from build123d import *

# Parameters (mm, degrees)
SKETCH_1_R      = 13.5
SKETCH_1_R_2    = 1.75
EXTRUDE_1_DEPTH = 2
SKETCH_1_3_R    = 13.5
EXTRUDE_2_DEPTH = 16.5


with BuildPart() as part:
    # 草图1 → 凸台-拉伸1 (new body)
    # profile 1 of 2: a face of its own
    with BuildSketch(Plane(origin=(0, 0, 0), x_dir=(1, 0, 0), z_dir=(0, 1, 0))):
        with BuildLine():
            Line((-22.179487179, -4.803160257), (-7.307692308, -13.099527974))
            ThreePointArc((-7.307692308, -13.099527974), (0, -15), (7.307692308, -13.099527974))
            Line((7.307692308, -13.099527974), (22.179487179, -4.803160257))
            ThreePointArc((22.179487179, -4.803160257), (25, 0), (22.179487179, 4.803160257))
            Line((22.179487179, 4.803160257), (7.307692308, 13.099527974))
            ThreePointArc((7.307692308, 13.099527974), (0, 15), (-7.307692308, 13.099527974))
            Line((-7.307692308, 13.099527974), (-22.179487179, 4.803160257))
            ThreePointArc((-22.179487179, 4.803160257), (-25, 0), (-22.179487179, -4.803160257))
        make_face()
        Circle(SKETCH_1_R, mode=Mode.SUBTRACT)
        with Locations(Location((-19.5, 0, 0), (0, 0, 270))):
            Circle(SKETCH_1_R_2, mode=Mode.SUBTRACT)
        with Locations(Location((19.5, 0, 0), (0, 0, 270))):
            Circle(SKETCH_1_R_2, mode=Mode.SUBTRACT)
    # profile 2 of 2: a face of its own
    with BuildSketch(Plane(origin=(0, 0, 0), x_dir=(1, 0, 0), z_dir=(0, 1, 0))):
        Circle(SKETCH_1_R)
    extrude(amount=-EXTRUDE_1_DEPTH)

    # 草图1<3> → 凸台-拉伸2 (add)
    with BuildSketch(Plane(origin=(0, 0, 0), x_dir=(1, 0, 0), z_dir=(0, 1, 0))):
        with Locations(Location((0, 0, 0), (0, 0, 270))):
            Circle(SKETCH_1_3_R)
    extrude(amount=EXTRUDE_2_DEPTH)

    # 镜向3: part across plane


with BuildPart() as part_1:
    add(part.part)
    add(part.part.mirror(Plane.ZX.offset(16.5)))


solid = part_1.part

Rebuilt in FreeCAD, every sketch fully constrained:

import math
import FreeCAD as App
import Part
import Sketcher

V = App.Vector

doc = App.newDocument("Part")
params = doc.addObject("Spreadsheet::Sheet", "Params")
for row, (alias, value) in enumerate([
    ("sketch1_radius", "15 mm"),
    ("sketch1_diameter", "3.5 mm"),
    ("sketch1_radius2", "5.5 mm"),
    ("pad1_length", "2 mm"),
    ("sketch2_diameter", "27 mm"),
    ("pad2_length", "16.5 mm"),
], start=1):
    params.set(f"A{row}", alias)
    params.set(f"B{row}", "=" + value)
    params.setAlias(f"B{row}", alias)

body = doc.addObject("PartDesign::Body", "Body")

sketch1 = doc.addObject("Sketcher::SketchObject", "Sketch")
body.addObject(sketch1)
sketch1.AttachmentSupport = (doc.XZ_Plane, [""])
sketch1.MapMode = "FlatFace"
sketch1.addGeometry(Part.LineSegment(V(-22.2, 4.8, 0), V(-7.3, 13.1, 0)), False)
sketch1.addGeometry(Part.ArcOfCircle(Part.Circle(V(0, 0, 0), V(0, 0, 1), 15), math.radians(61), math.radians(119)), False)
sketch1.addGeometry(Part.LineSegment(V(7.3, 13.1, 0), V(22.2, 4.8, 0)), False)
sketch1.addGeometry(Part.ArcOfCircle(Part.Circle(V(19.5, 0, 0), V(0, 0, 1), 5.5), math.radians(-61), math.radians(61)), False)
sketch1.addGeometry(Part.LineSegment(V(22.2, -4.8, 0), V(7.3, -13.1, 0)), False)
sketch1.addGeometry(Part.ArcOfCircle(Part.Circle(V(0, 0, 0), V(0, 0, 1), 15), math.radians(-119), math.radians(-61)), False)
sketch1.addGeometry(Part.LineSegment(V(-7.3, -13.1, 0), V(-22.2, -4.8, 0)), False)
sketch1.addGeometry(Part.ArcOfCircle(Part.Circle(V(-19.5, 0, 0), V(0, 0, 1), 5.5), math.radians(119), math.radians(241)), False)
sketch1.addGeometry(Part.Circle(V(-19.5, 0, 0), V(0, 0, 1), 1.8), False)
sketch1.addGeometry(Part.Circle(V(19.5, 0, 0), V(0, 0, 1), 1.8), False)
sketch1.addConstraint(Sketcher.Constraint("Tangent", 0, 2, 1, 2))
sketch1.addConstraint(Sketcher.Constraint("Tangent", 1, 1, 2, 1))
sketch1.addConstraint(Sketcher.Constraint("Tangent", 2, 2, 3, 2))
sketch1.addConstraint(Sketcher.Constraint("Tangent", 3, 1, 4, 1))
sketch1.addConstraint(Sketcher.Constraint("Tangent", 4, 2, 5, 2))
sketch1.addConstraint(Sketcher.Constraint("Tangent", 5, 1, 6, 1))
sketch1.addConstraint(Sketcher.Constraint("Tangent", 6, 2, 7, 2))
sketch1.addConstraint(Sketcher.Constraint("Tangent", 7, 1, 0, 1))
sketch1.addConstraint(Sketcher.Constraint("Coincident", 1, 3, -1, 1))
sketch1.addConstraint(Sketcher.Constraint("Coincident", 5, 3, -1, 1))
sketch1.addConstraint(Sketcher.Constraint("Coincident", 8, 3, 7, 3))
sketch1.addConstraint(Sketcher.Constraint("Coincident", 9, 3, 3, 3))
sketch1.addConstraint(Sketcher.Constraint("Equal", 1, 5))
sketch1.addConstraint(Sketcher.Constraint("Equal", 3, 7))
sketch1.addConstraint(Sketcher.Constraint("Equal", 8, 9))
sketch1.addConstraint(Sketcher.Constraint("Symmetric", 3, 3, 7, 3, -1, 1))
sketch1.addConstraint(Sketcher.Constraint("PointOnObject", 3, 3, -1))
sketch1.addConstraint(Sketcher.Constraint("Radius", 1, 15.0))
sketch1.addConstraint(Sketcher.Constraint("Diameter", 8, 3.5))
sketch1.addConstraint(Sketcher.Constraint("Radius", 3, 5.5))
sketch1.addConstraint(Sketcher.Constraint("DistanceX", 7, 3, 3, 3, 39.0))
sketch1.setExpression("Constraints[17]", "Params.sketch1_radius")
sketch1.setExpression("Constraints[18]", "Params.sketch1_diameter")
sketch1.setExpression("Constraints[19]", "Params.sketch1_radius2")
pad1 = doc.addObject("PartDesign::Pad", "Pad")
body.addObject(pad1)
pad1.Profile = sketch1
pad1.setExpression("Length", "Params.pad1_length")

sketch2 = doc.addObject("Sketcher::SketchObject", "Sketch001")
body.addObject(sketch2)
sketch2.AttachmentSupport = (doc.XZ_Plane, [""])
sketch2.MapMode = "FlatFace"
sketch2.addGeometry(Part.Circle(V(0, 0, 0), V(0, 0, 1), 14), False)
sketch2.addConstraint(Sketcher.Constraint("Coincident", 0, 3, -1, 1))
sketch2.addConstraint(Sketcher.Constraint("Diameter", 0, 27.0))
sketch2.setExpression("Constraints[1]", "Params.sketch2_diameter")
pad2 = doc.addObject("PartDesign::Pad", "Pad001")
body.addObject(pad2)
pad2.Profile = sketch2
pad2.setExpression("Length", "Params.pad2_length")
pad2.Reversed = True
body2 = doc.addObject("PartDesign::Body", "Body001")
doc.recompute()

body2.BaseFeature = body
doc.recompute()

mirroring = doc.addObject("Part::Mirroring", "Mirroring")
mirroring.Source = body
mirroring.Base = V(0, 16.5, 0)
mirroring.Normal = V(0, 1, 0)
body3 = doc.addObject("PartDesign::Body", "Body002")
body3.BaseFeature = mirroring
boolean = doc.addObject("PartDesign::Boolean", "Boolean")
body2.addObject(boolean)
boolean.Type = "Fuse"
boolean.addObjects([body3])
doc.recompute()
mirroring.Visibility = False

doc.recompute()
